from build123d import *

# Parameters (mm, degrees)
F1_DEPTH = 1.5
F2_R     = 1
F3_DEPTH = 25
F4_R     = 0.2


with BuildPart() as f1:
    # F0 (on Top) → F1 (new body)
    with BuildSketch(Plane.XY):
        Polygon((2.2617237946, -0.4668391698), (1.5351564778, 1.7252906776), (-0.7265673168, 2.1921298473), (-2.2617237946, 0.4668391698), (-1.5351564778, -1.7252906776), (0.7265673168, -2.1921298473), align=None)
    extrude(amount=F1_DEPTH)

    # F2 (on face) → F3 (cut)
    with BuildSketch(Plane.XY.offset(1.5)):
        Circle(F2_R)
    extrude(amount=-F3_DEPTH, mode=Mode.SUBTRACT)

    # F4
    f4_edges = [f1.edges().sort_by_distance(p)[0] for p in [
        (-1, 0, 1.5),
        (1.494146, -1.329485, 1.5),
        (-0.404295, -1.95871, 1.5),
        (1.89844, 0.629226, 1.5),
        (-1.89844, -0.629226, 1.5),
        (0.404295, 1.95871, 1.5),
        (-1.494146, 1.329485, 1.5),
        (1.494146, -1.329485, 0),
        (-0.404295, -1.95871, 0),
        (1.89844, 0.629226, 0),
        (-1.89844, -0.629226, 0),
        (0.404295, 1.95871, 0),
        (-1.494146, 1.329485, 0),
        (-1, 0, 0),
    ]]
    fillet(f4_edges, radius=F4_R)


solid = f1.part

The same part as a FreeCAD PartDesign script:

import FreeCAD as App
import Part
import Sketcher


def edges_at(feature, points):
    """Names of the edges that pass closest to the given points."""
    edges = feature.Shape.Edges
    near = lambda p: min(range(len(edges)), key=lambda i: edges[i].distToShape(Part.Vertex(*p))[0])
    return sorted({f"Edge{near(p) + 1}" for p in points})

doc = App.newDocument("Part")
body = doc.addObject("PartDesign::Body", "Body")

# Sketch on XY plane
sketch1 = body.newObject("Sketcher::SketchObject", "Sketch")
sketch1.AttachmentSupport = (doc.getObject("XY_Plane"), [""])
sketch1.MapMode = "FlatFace"
sketch1.addGeometry([
    Part.LineSegment(App.Vector(2.3, -0.5, 0), App.Vector(1.5, 1.7, 0)),  # 0
    Part.LineSegment(App.Vector(1.5, 1.7, 0), App.Vector(-0.7, 2.2, 0)),  # 1
    Part.LineSegment(App.Vector(-0.7, 2.2, 0), App.Vector(-2.3, 0.5, 0)),  # 2
    Part.LineSegment(App.Vector(-2.3, 0.5, 0), App.Vector(-1.5, -1.7, 0)),  # 3
    Part.LineSegment(App.Vector(-1.5, -1.7, 0), App.Vector(0.7, -2.2, 0)),  # 4
    Part.LineSegment(App.Vector(0.7, -2.2, 0), App.Vector(2.3, -0.5, 0)),  # 5
], False)
sketch1.addConstraint([
    Sketcher.Constraint("Coincident", 0, 2, 1, 1),
    Sketcher.Constraint("Coincident", 1, 2, 2, 1),
    Sketcher.Constraint("Coincident", 2, 2, 3, 1),
    Sketcher.Constraint("Coincident", 3, 2, 4, 1),
    Sketcher.Constraint("Coincident", 4, 2, 5, 1),
    Sketcher.Constraint("Coincident", 5, 2, 0, 1),
    Sketcher.Constraint("Symmetric", 0, 2, 3, 2, -1, 1),
    Sketcher.Constraint("Symmetric", 1, 2, 4, 2, -1, 1),
    Sketcher.Constraint("Symmetric", 2, 2, 5, 2, -1, 1),
    Sketcher.Constraint("Equal", 0, 1),
    Sketcher.Constraint("Equal", 1, 2),
    Sketcher.Constraint("Distance", 0, 2.309401),
    Sketcher.Constraint("DistanceY", -1, 1, 0, 2, 1.725291),
    Sketcher.Constraint("DistanceY", -1, 1, 1, 2, 2.19213),
    Sketcher.Constraint("DistanceY", -1, 1, 2, 2, 0.466839),
])
pad1 = body.newObject("PartDesign::Pad", "Pad")
pad1.Profile = sketch1
pad1.Length = 1.5

# Sketch on XY plane
sketch2 = body.newObject("Sketcher::SketchObject", "Sketch001")
sketch2.AttachmentSupport = (doc.getObject("XY_Plane"), [""])
sketch2.MapMode = "FlatFace"
sketch2.AttachmentOffset = App.Placement(App.Vector(0, 0, 1.5), App.Rotation())
sketch2.addGeometry(Part.Circle(App.Vector(0, 0, 0), App.Vector(0, 0, 1), 1), False)
sketch2.addConstraint([
    Sketcher.Constraint("Coincident", 0, 3, -1, 1),
    Sketcher.Constraint("Diameter", 0, 2.0),
])
pocket1 = body.newObject("PartDesign::Pocket", "Pocket")
pocket1.Profile = sketch2
pocket1.Length = 25
doc.recompute()

fillet = body.newObject("PartDesign::Fillet", "Fillet")
fillet.Base = (pocket1, edges_at(pocket1, [
    (-1, 0, 1.5),
    (1.494, -1.329, 1.5),
    (-0.404, -1.959, 1.5),
    (1.898, 0.629, 1.5),
    (-1.898, -0.629, 1.5),
    (0.404, 1.959, 1.5),
    (-1.494, 1.329, 1.5),
    (1.494, -1.329, 0),
    (-0.404, -1.959, 0),
    (1.898, 0.629, 0),
    (-1.898, -0.629, 0),
    (0.404, 1.959, 0),
    (-1.494, 1.329, 0),
    (-1, 0, 0),
]))
fillet.Radius = 0.2

doc.recompute()
